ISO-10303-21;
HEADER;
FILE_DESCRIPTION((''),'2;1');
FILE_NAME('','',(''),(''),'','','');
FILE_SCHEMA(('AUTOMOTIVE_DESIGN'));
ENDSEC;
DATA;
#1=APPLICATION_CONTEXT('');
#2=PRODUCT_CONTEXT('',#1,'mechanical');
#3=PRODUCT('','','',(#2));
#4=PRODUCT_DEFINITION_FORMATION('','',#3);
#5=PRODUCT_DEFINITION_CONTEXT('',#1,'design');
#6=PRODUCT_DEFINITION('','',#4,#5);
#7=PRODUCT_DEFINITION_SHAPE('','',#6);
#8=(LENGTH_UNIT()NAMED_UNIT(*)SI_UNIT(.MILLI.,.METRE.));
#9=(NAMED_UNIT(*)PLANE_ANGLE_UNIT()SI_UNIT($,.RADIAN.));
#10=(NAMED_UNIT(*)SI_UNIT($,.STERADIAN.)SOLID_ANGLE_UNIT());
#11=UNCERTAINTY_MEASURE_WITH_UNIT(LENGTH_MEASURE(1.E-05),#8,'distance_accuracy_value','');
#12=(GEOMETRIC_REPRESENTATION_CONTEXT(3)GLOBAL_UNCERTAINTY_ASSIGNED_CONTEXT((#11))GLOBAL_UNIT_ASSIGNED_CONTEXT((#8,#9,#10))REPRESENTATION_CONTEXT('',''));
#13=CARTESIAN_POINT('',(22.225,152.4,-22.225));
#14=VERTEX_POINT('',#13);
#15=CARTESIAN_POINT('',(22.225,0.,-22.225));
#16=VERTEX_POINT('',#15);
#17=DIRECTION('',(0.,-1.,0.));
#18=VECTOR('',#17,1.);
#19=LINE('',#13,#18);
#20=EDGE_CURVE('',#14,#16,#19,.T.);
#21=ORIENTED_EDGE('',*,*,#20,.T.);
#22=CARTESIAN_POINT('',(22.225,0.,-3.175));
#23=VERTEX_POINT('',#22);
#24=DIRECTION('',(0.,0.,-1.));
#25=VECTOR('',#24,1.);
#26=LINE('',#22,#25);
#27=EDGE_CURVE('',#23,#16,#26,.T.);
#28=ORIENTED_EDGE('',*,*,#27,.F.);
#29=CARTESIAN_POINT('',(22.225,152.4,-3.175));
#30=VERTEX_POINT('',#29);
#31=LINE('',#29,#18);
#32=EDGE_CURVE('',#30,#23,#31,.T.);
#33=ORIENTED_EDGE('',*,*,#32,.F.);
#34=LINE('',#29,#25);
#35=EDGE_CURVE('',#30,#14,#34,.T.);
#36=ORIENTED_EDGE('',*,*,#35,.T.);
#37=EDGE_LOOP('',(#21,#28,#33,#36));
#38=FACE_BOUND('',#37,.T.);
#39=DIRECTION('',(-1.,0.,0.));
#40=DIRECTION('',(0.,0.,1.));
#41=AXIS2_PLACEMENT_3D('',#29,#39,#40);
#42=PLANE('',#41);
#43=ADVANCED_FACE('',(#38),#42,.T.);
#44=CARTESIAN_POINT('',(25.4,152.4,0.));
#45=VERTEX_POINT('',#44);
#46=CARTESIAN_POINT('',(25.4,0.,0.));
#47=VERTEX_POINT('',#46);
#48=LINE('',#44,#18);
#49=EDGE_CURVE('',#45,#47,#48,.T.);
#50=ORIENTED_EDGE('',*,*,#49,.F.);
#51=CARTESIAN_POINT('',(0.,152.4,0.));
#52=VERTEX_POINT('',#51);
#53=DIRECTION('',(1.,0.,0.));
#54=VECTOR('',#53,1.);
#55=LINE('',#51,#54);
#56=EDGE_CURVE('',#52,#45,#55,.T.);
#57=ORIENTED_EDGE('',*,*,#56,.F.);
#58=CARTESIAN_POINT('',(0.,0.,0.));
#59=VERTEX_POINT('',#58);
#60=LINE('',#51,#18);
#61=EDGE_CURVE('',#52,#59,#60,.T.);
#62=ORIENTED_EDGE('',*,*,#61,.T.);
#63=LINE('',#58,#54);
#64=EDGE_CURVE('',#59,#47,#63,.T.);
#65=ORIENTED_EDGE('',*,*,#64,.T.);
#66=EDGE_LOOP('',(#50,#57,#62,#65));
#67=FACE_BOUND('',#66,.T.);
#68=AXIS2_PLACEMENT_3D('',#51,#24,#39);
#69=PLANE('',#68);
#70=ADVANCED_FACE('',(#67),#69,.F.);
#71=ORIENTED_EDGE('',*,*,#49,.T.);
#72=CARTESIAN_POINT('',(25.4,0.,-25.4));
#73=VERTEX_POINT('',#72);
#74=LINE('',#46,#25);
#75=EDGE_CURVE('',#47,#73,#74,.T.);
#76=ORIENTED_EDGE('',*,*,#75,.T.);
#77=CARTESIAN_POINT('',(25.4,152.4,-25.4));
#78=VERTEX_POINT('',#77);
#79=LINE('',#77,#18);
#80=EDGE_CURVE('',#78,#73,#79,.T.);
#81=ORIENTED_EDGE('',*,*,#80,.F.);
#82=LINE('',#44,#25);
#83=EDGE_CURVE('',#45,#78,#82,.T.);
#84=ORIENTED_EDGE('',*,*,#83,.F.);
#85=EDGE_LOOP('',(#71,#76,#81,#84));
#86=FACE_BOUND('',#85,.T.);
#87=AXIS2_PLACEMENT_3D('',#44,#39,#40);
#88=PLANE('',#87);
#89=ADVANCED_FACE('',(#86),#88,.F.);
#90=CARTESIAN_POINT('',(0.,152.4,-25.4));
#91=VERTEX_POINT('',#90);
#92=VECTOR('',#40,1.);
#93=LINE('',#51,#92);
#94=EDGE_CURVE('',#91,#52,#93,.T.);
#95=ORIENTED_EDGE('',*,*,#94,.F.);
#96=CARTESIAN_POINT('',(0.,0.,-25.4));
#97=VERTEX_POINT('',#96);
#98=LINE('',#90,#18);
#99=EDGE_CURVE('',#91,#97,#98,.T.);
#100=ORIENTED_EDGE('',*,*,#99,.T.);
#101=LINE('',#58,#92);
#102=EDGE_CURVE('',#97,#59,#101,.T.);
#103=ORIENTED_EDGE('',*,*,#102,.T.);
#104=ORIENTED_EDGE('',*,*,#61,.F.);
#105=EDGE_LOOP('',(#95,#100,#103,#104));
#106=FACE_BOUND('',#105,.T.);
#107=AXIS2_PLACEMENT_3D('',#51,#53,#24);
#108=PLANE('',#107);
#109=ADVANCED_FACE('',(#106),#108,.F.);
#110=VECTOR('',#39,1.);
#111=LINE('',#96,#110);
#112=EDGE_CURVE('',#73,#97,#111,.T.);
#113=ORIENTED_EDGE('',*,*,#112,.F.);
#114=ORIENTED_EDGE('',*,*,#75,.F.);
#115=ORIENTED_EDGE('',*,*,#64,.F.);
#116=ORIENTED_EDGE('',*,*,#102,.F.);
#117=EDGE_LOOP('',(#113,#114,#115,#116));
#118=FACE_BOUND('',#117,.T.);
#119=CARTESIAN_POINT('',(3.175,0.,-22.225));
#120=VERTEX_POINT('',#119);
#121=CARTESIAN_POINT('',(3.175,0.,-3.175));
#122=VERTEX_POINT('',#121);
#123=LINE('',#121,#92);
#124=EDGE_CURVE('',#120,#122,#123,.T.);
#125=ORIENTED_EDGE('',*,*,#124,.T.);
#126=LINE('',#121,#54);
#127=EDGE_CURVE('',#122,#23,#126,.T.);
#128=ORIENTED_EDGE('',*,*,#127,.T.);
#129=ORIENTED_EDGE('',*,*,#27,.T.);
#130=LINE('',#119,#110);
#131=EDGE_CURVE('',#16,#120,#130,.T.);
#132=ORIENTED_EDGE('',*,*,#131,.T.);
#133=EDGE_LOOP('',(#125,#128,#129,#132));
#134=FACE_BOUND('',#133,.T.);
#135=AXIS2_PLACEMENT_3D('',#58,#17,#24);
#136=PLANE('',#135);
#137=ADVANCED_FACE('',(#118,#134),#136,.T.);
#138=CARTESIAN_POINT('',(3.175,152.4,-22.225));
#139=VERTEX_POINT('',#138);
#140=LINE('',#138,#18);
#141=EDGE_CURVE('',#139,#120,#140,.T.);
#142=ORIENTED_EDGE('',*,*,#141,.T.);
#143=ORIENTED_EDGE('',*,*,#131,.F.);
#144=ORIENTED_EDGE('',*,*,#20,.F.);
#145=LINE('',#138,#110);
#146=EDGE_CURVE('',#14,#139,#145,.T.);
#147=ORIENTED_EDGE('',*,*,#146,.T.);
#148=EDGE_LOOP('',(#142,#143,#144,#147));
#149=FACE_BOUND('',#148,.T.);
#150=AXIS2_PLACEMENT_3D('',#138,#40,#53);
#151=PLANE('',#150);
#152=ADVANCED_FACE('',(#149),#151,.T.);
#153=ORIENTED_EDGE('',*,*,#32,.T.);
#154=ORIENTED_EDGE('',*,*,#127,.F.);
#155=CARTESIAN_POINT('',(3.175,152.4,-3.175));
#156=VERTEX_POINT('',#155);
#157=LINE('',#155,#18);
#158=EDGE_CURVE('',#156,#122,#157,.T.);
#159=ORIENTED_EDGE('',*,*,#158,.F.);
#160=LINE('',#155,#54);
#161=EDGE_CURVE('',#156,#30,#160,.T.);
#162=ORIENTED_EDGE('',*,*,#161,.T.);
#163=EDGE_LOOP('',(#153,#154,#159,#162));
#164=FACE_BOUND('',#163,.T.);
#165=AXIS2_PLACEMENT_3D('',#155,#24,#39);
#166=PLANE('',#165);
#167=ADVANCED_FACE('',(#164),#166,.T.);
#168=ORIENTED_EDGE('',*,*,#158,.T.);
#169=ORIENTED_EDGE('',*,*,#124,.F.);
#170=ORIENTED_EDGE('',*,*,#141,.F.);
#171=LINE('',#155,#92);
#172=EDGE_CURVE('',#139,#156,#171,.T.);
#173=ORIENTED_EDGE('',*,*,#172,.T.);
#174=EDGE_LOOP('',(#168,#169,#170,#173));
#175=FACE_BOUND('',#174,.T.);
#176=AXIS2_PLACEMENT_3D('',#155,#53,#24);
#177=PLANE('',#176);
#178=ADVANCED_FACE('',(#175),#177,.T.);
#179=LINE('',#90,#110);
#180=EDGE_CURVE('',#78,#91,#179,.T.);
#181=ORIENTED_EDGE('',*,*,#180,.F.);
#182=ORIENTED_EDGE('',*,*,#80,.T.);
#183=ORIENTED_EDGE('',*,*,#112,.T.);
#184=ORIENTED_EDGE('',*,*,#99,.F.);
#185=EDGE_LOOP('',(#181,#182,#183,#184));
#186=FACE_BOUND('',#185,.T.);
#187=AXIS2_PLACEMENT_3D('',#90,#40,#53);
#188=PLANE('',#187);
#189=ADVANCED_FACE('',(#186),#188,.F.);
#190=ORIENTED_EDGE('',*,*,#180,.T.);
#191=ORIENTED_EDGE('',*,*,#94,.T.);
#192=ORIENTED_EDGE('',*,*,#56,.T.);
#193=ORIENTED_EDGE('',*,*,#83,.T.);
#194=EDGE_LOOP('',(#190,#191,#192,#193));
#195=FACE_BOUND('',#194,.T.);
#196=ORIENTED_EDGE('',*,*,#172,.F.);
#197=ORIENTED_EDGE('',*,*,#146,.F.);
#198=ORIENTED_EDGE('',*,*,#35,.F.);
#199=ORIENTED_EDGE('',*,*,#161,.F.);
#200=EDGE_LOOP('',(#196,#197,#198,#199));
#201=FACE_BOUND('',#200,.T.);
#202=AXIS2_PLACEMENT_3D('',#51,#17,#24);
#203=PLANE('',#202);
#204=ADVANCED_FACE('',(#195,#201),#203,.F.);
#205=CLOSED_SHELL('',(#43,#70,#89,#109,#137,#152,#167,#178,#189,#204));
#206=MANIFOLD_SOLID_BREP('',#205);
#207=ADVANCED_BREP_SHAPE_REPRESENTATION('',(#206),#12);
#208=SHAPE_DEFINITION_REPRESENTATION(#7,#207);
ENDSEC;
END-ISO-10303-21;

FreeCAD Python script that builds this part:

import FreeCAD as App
import Part
import Sketcher
Q = App.Units.Quantity


def add_polygon(sketch, points):
    """Adds a closed chain of lines whose ends are joined by coincident constraints."""
    first, n = sketch.GeometryCount, len(points)
    for a, b in zip(points, points[1:] + points[:1]):
        sketch.addGeometry(Part.LineSegment(App.Vector(*a, 0), App.Vector(*b, 0)), False)
    for i in range(n):
        sketch.addConstraint(Sketcher.Constraint("Coincident", first + i, 2, first + (i + 1) % n, 1))

doc = App.newDocument("Part")
body = doc.addObject("PartDesign::Body", "Body")

sketch1 = body.newObject("Sketcher::SketchObject", "Sketch")
sketch1.AttachmentSupport = (doc.getObject("XZ_Plane"), [""])
sketch1.MapMode = "FlatFace"
add_polygon(sketch1, [(0, -25.4), (0, 0), (25.4, 0), (25.4, -25.4)])
add_polygon(sketch1, [(22.225, -3.175), (3.175, -3.175), (3.175, -22.225), (22.225, -22.225)])
sketch1.addConstraint([
    Sketcher.Constraint("Vertical", 0),
    Sketcher.Constraint("Horizontal", 1),
    Sketcher.Constraint("Vertical", 2),
    Sketcher.Constraint("Horizontal", 3),
    Sketcher.Constraint("Horizontal", 4),
    Sketcher.Constraint("Vertical", 5),
    Sketcher.Constraint("Horizontal", 6),
    Sketcher.Constraint("Vertical", 7),
    Sketcher.Constraint("Coincident", 0, 2, -1, 1),
    Sketcher.Constraint("Equal", 3, 0),
    Sketcher.Constraint("Equal", 6, 5),
    Sketcher.Constraint("DistanceX", 1, 1, 1, 2, Q("1 in")),
    Sketcher.Constraint("DistanceX", 4, 2, 4, 1, Q("0.75 in")),
    Sketcher.Constraint("DistanceX", -1, 1, 4, 2, Q("0.125 in")),
    Sketcher.Constraint("DistanceY", 4, 2, -1, 1, Q("0.125 in")),
])
pad1 = body.newObject("PartDesign::Pad", "Pad")
pad1.Profile = sketch1
pad1.Length = Q("6 in")
pad1.Reversed = True

doc.recompute()
